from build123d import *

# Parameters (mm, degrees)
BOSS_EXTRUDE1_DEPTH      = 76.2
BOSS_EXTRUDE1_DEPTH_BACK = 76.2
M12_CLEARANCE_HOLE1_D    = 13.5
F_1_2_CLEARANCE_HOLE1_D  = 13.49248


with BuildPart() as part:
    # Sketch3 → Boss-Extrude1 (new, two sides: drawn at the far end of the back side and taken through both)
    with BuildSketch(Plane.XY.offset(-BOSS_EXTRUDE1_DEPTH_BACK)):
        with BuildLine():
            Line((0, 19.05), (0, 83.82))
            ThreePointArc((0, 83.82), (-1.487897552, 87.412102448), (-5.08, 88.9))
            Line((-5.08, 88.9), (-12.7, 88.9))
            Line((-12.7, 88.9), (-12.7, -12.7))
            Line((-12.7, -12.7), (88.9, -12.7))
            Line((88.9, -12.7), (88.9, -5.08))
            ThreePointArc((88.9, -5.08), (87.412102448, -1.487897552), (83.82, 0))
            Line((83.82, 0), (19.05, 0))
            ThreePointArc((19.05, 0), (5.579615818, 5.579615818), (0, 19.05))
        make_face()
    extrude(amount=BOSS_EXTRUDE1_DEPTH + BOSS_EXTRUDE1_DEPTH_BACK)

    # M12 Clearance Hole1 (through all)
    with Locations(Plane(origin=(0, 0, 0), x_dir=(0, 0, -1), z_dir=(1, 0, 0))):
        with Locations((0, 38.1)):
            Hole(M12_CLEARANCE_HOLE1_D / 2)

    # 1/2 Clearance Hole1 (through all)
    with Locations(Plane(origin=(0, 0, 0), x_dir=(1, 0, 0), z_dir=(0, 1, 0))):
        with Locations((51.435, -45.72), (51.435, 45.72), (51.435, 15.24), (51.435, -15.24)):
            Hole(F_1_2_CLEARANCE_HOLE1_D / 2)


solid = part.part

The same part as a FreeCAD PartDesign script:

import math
import FreeCAD as App
import Part
import Sketcher
from FreeCAD import Vector
Q = App.Units.Quantity

doc = App.newDocument("Part")
params = doc.addObject("Spreadsheet::Sheet", "Params")
for row, (alias, value) in enumerate([
    ("sketch1_radius", "0.2 in"),
    ("sketch1_width", "4 in"),
    ("sketch1_radius2", "0.75 in"),
    ("sketch1_width2", "0.3 in"),
    ("pad1_length", "3 in"),
    ("pad1_length2", "3 in"),
    ("hole_diameter", "13.5 mm"),
    ("hole2_diameter", "0.5312 in"),
], start=1):
    params.set(f"A{row}", alias)
    params.set(f"B{row}", "=" + value)
    params.setAlias(f"B{row}", alias)

body = doc.addObject("PartDesign::Body", "Body")

sketch1 = doc.addObject("Sketcher::SketchObject", "Sketch")
body.addObject(sketch1)
sketch1.AttachmentSupport = (doc.XY_Plane, [""])
sketch1.MapMode = "FlatFace"
sketch1.addGeometry([
    Part.LineSegment(Vector(0, 19, 0), Vector(0, 84, 0)),
    Part.ArcOfCircle(Part.Circle(Vector(-5, 84, 0), Vector(0, 0, 1), 5), math.radians(0), math.radians(90)),
    Part.LineSegment(Vector(-5, 89, 0), Vector(-13, 89, 0)),
    Part.LineSegment(Vector(-13, 89, 0), Vector(-13, -13, 0)),
    Part.LineSegment(Vector(-13, -13, 0), Vector(89, -13, 0)),
    Part.LineSegment(Vector(89, -13, 0), Vector(89, -5, 0)),
    Part.ArcOfCircle(Part.Circle(Vector(84, -5, 0), Vector(0, 0, 1), 5), math.radians(0), math.radians(90)),
    Part.LineSegment(Vector(84, 0, 0), Vector(19, 0, 0)),
    Part.ArcOfCircle(Part.Circle(Vector(19, 19, 0), Vector(0, 0, 1), 19), math.radians(180), math.radians(270)),
], False)
sketch1.addConstraint([
    Sketcher.Constraint("Tangent", 0, 2, 1, 1),
    Sketcher.Constraint("Tangent", 1, 2, 2, 1),
    Sketcher.Constraint("Coincident", 2, 2, 3, 1),
    Sketcher.Constraint("Coincident", 3, 2, 4, 1),
    Sketcher.Constraint("Coincident", 4, 2, 5, 1),
    Sketcher.Constraint("Tangent", 5, 2, 6, 1),
    Sketcher.Constraint("Tangent", 6, 2, 7, 1),
    Sketcher.Constraint("Tangent", 7, 2, 8, 2),
    Sketcher.Constraint("Tangent", 8, 1, 0, 1),
    Sketcher.Constraint("Vertical", 0),
    Sketcher.Constraint("Horizontal", 2),
    Sketcher.Constraint("Vertical", 3),
    Sketcher.Constraint("Horizontal", 4),
    Sketcher.Constraint("Vertical", 5),
    Sketcher.Constraint("Horizontal", 7),
    Sketcher.Constraint("Equal", 1, 6),
    Sketcher.Constraint("PointOnObject", 0, 2, -2),
    Sketcher.Constraint("PointOnObject", 6, 2, -1),
    Sketcher.Constraint("Equal", 7, 0),
    Sketcher.Constraint("Equal", 4, 3),
    Sketcher.Constraint("Radius", 1, Q("0.2 in")),
    Sketcher.Constraint("DistanceX", 4, 1, 4, 2, Q("4 in")),
    Sketcher.Constraint("Radius", 8, Q("0.75 in")),
    Sketcher.Constraint("DistanceX", 2, 2, 2, 1, Q("0.3 in")),
])
sketch1.setExpression("Constraints[20]", "Params.sketch1_radius")
sketch1.setExpression("Constraints[21]", "Params.sketch1_width")
sketch1.setExpression("Constraints[22]", "Params.sketch1_radius2")
sketch1.setExpression("Constraints[23]", "Params.sketch1_width2")
pad1 = doc.addObject("PartDesign::Pad", "Pad")
body.addObject(pad1)
pad1.Profile = sketch1
pad1.Type = "TwoLengths"
pad1.setExpression("Length", "Params.pad1_length")
pad1.setExpression("Length2", "Params.pad1_length2")

sketch2 = doc.addObject("Sketcher::SketchObject", "Sketch001")
body.addObject(sketch2)
sketch2.AttachmentSupport = (doc.YZ_Plane, [""])
sketch2.MapMode = "FlatFace"
sketch2.addGeometry(Part.Circle(Vector(38, 0, 0), Vector(0, 0, 1), 7), False)
sketch2.addConstraint([
    Sketcher.Constraint("PointOnObject", 0, 3, -1),
    Sketcher.Constraint("DistanceX", -1, 1, 0, 3, Q("1.5 in")),
    Sketcher.Constraint("Diameter", 0, Q("13.5 mm")),
])
doc.recompute()
hole = doc.addObject("PartDesign::Hole", "Hole")
body.addObject(hole)
hole.Profile = sketch2
hole.ThreadType = "None"
hole.setExpression("Diameter", "Params.hole_diameter")
hole.DepthType = "ThroughAll"

sketch3 = doc.addObject("Sketcher::SketchObject", "Sketch002")
body.addObject(sketch3)
sketch3.AttachmentSupport = (doc.XZ_Plane, [""])
sketch3.MapMode = "FlatFace"
sketch3.addGeometry([
    Part.Circle(Vector(51, 46, 0), Vector(0, 0, 1), 7),
    Part.Circle(Vector(51, -46, 0), Vector(0, 0, 1), 7),
    Part.Circle(Vector(51, -15, 0), Vector(0, 0, 1), 7),
    Part.Circle(Vector(51, 15, 0), Vector(0, 0, 1), 7),
], False)
sketch3.addConstraint([
    Sketcher.Constraint("Equal", 0, 1),
    Sketcher.Constraint("Equal", 1, 2),
    Sketcher.Constraint("Equal", 2, 3),
    Sketcher.Constraint("Symmetric", 0, 3, 1, 3, -1),
    Sketcher.Constraint("Symmetric", 2, 3, 3, 3, -1),
    Sketcher.Constraint("Vertical", 1, 3, 2, 3),
    Sketcher.Constraint("Diameter", 0, Q("0.5312 in")),
    Sketcher.Constraint("DistanceY", -1, 1, 0, 3, Q("1.8 in")),
    Sketcher.Constraint("DistanceY", 2, 3, -1, 1, Q("0.6 in")),
    Sketcher.Constraint("DistanceX", -1, 1, 0, 3, Q("2.025 in")),
])
doc.recompute()
hole2 = doc.addObject("PartDesign::Hole", "Hole001")
body.addObject(hole2)
hole2.Profile = sketch3
hole2.ThreadType = "None"
hole2.setExpression("Diameter", "Params.hole2_diameter")
hole2.DepthType = "ThroughAll"
hole2.Reversed = True

doc.recompute()
